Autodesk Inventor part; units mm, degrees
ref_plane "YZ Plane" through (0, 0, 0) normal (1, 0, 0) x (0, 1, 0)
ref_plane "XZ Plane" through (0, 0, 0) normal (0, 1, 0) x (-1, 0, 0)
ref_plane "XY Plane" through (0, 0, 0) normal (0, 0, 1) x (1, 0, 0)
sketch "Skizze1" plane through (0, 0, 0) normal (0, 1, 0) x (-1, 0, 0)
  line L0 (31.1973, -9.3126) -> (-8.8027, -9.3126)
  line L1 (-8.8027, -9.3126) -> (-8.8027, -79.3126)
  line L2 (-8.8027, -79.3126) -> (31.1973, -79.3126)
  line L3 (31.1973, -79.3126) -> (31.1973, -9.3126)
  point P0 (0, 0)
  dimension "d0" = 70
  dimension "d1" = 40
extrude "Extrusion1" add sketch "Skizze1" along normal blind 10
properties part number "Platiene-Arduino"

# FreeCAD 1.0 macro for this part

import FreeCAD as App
import Part
import Sketcher

doc = App.newDocument("Part")
body = doc.addObject("PartDesign::Body", "Body")

# Sketch on XZ plane
sketch1 = body.newObject("Sketcher::SketchObject", "Sketch")
sketch1.AttachmentSupport = (doc.getObject("XZ_Plane"), [""])
sketch1.MapMode = "FlatFace"
sketch1.addGeometry([
    Part.LineSegment(App.Vector(-31, -79, 0), App.Vector(-31, -9, 0)),
    Part.LineSegment(App.Vector(-31, -9, 0), App.Vector(9, -9, 0)),
    Part.LineSegment(App.Vector(9, -9, 0), App.Vector(9, -79, 0)),
    Part.LineSegment(App.Vector(9, -79, 0), App.Vector(-31, -79, 0)),
], False)
sketch1.addConstraint([
    Sketcher.Constraint("Coincident", 0, 2, 1, 1),
    Sketcher.Constraint("Coincident", 1, 2, 2, 1),
    Sketcher.Constraint("Coincident", 2, 2, 3, 1),
    Sketcher.Constraint("Coincident", 3, 2, 0, 1),
    Sketcher.Constraint("Vertical", 0),
    Sketcher.Constraint("Horizontal", 1),
    Sketcher.Constraint("Vertical", 2),
    Sketcher.Constraint("Horizontal", 3),
    Sketcher.Constraint("DistanceX", 1, 1, 1, 2, 40.0),
    Sketcher.Constraint("DistanceY", 0, 1, 0, 2, 70.0),
    Sketcher.Constraint("DistanceX", 0, 2, -1, 1, 31.1973),
    Sketcher.Constraint("DistanceY", 0, 2, -1, 1, 9.3126),
])
pad1 = body.newObject("PartDesign::Pad", "Pad")
pad1.Profile = sketch1
pad1.Length = 10
pad1.Reversed = True

doc.recompute()
